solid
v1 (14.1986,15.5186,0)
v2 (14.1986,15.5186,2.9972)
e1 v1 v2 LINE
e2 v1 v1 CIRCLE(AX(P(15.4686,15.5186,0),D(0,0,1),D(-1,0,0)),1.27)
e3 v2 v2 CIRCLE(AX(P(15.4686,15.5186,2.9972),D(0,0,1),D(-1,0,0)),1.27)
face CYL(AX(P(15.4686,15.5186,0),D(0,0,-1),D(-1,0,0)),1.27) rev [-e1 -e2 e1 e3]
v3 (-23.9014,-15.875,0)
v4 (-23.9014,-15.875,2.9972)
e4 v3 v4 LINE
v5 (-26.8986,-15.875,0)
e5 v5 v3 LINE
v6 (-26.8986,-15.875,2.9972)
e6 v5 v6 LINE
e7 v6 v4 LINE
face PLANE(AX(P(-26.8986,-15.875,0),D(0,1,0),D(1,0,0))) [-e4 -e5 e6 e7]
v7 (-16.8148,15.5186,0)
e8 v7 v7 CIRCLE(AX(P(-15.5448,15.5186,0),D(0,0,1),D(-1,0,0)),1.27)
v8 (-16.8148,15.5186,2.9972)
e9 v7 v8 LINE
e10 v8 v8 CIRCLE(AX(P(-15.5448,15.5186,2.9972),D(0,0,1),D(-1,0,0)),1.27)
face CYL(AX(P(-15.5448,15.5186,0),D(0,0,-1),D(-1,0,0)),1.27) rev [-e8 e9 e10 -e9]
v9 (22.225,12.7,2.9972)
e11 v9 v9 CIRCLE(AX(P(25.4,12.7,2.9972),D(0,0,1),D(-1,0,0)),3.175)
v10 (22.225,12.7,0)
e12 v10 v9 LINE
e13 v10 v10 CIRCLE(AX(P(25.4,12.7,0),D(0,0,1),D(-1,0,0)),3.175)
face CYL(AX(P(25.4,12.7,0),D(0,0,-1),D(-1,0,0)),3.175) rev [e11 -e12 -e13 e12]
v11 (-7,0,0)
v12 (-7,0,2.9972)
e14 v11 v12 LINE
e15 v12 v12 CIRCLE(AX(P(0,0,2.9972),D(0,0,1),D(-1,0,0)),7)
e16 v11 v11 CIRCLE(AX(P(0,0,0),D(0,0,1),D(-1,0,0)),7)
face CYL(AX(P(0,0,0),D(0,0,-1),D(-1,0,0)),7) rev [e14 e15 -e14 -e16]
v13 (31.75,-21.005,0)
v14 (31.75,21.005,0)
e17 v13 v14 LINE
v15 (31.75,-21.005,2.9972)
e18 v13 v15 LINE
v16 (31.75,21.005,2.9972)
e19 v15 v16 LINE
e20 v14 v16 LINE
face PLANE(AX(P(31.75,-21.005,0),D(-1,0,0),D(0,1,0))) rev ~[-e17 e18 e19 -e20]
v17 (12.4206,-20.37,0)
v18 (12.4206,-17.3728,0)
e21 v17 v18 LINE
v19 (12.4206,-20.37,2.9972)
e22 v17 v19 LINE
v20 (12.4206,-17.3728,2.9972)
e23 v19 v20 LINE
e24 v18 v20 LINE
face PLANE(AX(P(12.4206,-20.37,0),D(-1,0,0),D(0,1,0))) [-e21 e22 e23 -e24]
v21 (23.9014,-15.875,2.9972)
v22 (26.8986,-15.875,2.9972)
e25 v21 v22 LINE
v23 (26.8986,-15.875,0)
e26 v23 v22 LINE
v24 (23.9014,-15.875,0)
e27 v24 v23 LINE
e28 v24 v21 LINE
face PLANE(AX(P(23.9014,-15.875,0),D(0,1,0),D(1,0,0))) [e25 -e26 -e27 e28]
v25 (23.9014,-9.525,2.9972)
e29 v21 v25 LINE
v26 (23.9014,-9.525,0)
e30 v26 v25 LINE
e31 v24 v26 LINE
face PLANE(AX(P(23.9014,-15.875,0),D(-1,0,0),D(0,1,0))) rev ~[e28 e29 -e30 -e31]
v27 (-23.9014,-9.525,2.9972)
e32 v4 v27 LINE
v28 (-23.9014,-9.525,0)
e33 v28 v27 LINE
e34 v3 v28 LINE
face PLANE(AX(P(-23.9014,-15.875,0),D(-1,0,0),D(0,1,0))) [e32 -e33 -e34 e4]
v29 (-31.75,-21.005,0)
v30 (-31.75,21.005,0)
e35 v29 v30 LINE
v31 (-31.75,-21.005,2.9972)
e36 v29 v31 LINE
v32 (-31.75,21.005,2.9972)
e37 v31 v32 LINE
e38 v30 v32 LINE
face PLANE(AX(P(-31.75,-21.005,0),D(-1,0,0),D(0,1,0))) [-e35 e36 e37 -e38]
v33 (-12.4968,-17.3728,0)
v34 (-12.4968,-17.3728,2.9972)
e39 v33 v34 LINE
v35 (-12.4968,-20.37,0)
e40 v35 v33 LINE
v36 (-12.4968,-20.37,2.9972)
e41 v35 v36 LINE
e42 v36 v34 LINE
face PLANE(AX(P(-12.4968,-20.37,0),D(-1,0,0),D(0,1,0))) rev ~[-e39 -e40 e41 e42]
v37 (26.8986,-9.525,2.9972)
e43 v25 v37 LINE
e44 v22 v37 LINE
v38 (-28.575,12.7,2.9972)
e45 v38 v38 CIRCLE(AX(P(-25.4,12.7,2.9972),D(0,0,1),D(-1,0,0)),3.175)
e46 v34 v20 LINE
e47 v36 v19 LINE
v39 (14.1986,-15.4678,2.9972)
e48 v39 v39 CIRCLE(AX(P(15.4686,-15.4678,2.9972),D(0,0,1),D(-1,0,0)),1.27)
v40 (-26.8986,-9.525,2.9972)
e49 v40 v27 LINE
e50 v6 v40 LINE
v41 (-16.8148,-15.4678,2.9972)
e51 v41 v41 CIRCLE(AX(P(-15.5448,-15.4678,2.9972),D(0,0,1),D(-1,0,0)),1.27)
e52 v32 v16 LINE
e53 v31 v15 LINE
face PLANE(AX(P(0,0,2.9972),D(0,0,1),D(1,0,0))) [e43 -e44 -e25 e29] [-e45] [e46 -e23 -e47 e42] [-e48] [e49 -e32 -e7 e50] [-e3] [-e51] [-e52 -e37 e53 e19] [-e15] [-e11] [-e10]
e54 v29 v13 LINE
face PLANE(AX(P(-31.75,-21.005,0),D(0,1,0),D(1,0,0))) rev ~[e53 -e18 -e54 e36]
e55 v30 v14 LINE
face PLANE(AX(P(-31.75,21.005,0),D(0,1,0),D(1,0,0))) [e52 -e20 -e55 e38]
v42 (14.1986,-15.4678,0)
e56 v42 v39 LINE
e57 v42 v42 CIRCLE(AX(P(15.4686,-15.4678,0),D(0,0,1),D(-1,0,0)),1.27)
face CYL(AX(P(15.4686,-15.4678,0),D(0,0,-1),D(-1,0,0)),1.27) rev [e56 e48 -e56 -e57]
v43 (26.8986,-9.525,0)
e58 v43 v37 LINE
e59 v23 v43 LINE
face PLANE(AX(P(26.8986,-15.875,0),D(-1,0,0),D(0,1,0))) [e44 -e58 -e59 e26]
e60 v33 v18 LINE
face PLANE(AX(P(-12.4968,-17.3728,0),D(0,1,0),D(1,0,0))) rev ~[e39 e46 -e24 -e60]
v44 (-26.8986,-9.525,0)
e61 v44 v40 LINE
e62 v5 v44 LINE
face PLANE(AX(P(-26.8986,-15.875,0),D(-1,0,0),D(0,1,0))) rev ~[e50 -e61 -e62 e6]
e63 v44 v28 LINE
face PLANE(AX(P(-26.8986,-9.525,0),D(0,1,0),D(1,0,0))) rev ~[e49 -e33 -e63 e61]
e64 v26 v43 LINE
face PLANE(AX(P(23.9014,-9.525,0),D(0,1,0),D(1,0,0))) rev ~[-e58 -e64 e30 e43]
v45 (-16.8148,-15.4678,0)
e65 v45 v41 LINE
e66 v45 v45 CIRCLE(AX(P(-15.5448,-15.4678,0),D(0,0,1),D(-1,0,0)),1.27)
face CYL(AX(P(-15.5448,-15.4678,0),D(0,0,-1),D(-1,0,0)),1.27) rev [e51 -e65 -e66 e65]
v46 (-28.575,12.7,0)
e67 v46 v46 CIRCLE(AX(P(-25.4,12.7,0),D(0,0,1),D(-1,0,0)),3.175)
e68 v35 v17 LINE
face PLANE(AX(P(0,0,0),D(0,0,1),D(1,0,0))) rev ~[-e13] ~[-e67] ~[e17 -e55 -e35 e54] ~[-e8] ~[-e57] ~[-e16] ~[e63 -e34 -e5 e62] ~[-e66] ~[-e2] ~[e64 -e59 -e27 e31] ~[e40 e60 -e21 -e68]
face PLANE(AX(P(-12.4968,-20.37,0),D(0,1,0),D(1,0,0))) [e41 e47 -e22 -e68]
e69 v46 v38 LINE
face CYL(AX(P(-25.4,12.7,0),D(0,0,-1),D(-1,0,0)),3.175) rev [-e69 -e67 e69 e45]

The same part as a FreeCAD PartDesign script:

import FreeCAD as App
import Part
import Sketcher
from FreeCAD import Vector
Q = App.Units.Quantity

doc = App.newDocument("Part")
body = doc.addObject("PartDesign::Body", "Body")

# Sketch on XY plane
sketch1 = body.newObject("Sketcher::SketchObject", "Sketch")
sketch1.AttachmentSupport = (doc.getObject("XY_Plane"), [""])
sketch1.MapMode = "FlatFace"
sketch1.addGeometry([
    Part.LineSegment(Vector(-31.8, 21, 0), Vector(-31.8, -21, 0)),  # 0
    Part.LineSegment(Vector(-31.8, -21, 0), Vector(31.8, -21, 0)),  # 1
    Part.LineSegment(Vector(31.8, -21, 0), Vector(31.8, 21, 0)),  # 2
    Part.LineSegment(Vector(31.8, 21, 0), Vector(-31.8, 21, 0)),  # 3
    Part.LineSegment(Vector(-23.9, -15.9, 0), Vector(-26.9, -15.9, 0)),  # 4
    Part.LineSegment(Vector(-26.9, -15.9, 0), Vector(-26.9, -9.5, 0)),  # 5
    Part.LineSegment(Vector(-26.9, -9.5, 0), Vector(-23.9, -9.5, 0)),  # 6
    Part.LineSegment(Vector(-23.9, -9.5, 0), Vector(-23.9, -15.9, 0)),  # 7
    Part.Circle(Vector(-15.5, -15.5, 0), Vector(0, 0, 1), 1.3),  # 8
    Part.LineSegment(Vector(12.4, -20.4, 0), Vector(-12.5, -20.4, 0)),  # 9
    Part.LineSegment(Vector(-12.5, -20.4, 0), Vector(-12.5, -17.4, 0)),  # 10
    Part.LineSegment(Vector(-12.5, -17.4, 0), Vector(12.4, -17.4, 0)),  # 11
    Part.LineSegment(Vector(12.4, -17.4, 0), Vector(12.4, -20.4, 0)),  # 12
    Part.Circle(Vector(15.5, -15.5, 0), Vector(0, 0, 1), 1.3),  # 13
    Part.LineSegment(Vector(26.9, -15.9, 0), Vector(23.9, -15.9, 0)),  # 14
    Part.LineSegment(Vector(23.9, -15.9, 0), Vector(23.9, -9.5, 0)),  # 15
    Part.LineSegment(Vector(23.9, -9.5, 0), Vector(26.9, -9.5, 0)),  # 16
    Part.LineSegment(Vector(26.9, -9.5, 0), Vector(26.9, -15.9, 0)),  # 17
    Part.Circle(Vector(-25.4, 12.7, 0), Vector(0, 0, 1), 3.2),  # 18
    Part.Circle(Vector(-15.5, 15.5, 0), Vector(0, 0, 1), 1.3),  # 19
    Part.Circle(Vector(0, 0, 0), Vector(0, 0, 1), 7),  # 20
    Part.Circle(Vector(15.5, 15.5, 0), Vector(0, 0, 1), 1.3),  # 21
    Part.Circle(Vector(25.4, 12.7, 0), Vector(0, 0, 1), 3.2),  # 22
], False)
sketch1.addConstraint([
    Sketcher.Constraint("Coincident", 0, 2, 1, 1),
    Sketcher.Constraint("Coincident", 1, 2, 2, 1),
    Sketcher.Constraint("Coincident", 2, 2, 3, 1),
    Sketcher.Constraint("Coincident", 3, 2, 0, 1),
    Sketcher.Constraint("Coincident", 4, 2, 5, 1),
    Sketcher.Constraint("Coincident", 5, 2, 6, 1),
    Sketcher.Constraint("Coincident", 6, 2, 7, 1),
    Sketcher.Constraint("Coincident", 7, 2, 4, 1),
    Sketcher.Constraint("Coincident", 9, 2, 10, 1),
    Sketcher.Constraint("Coincident", 10, 2, 11, 1),
    Sketcher.Constraint("Coincident", 11, 2, 12, 1),
    Sketcher.Constraint("Coincident", 12, 2, 9, 1),
    Sketcher.Constraint("Coincident", 14, 2, 15, 1),
    Sketcher.Constraint("Coincident", 15, 2, 16, 1),
    Sketcher.Constraint("Coincident", 16, 2, 17, 1),
    Sketcher.Constraint("Coincident", 17, 2, 14, 1),
    Sketcher.Constraint("Vertical", 0),
    Sketcher.Constraint("Horizontal", 1),
    Sketcher.Constraint("Vertical", 2),
    Sketcher.Constraint("Horizontal", 3),
    Sketcher.Constraint("Horizontal", 4),
    Sketcher.Constraint("Vertical", 5),
    Sketcher.Constraint("Horizontal", 6),
    Sketcher.Constraint("Vertical", 7),
    Sketcher.Constraint("Horizontal", 9),
    Sketcher.Constraint("Vertical", 10),
    Sketcher.Constraint("Horizontal", 11),
    Sketcher.Constraint("Vertical", 12),
    Sketcher.Constraint("Horizontal", 14),
    Sketcher.Constraint("Vertical", 15),
    Sketcher.Constraint("Horizontal", 16),
    Sketcher.Constraint("Vertical", 17),
    Sketcher.Constraint("Coincident", 20, 3, -1, 1),
    Sketcher.Constraint("Equal", 8, 13),
    Sketcher.Constraint("Equal", 13, 19),
    Sketcher.Constraint("Equal", 19, 21),
    Sketcher.Constraint("Equal", 18, 22),
    Sketcher.Constraint("Symmetric", 0, 2, 2, 2, -1, 1),
    Sketcher.Constraint("Symmetric", 18, 3, 22, 3, -2),
    Sketcher.Constraint("Symmetric", 7, 2, 14, 2, -2),
    Sketcher.Constraint("Symmetric", 5, 2, 16, 2, -2),
    Sketcher.Constraint("Horizontal", 8, 3, 13, 3),
    Sketcher.Constraint("Horizontal", 19, 3, 21, 3),
    Sketcher.Constraint("Vertical", 8, 3, 19, 3),
    Sketcher.Constraint("Vertical", 13, 3, 21, 3),
    Sketcher.Constraint("Equal", 16, 10),
    Sketcher.Constraint("Diameter", 8, Q("0.1 in")),
    Sketcher.Constraint("Diameter", 18, Q("0.25 in")),
    Sketcher.Constraint("DistanceX", 1, 1, 1, 2, Q("2.5 in")),
    Sketcher.Constraint("DistanceX", 18, 3, -1, 1, Q("1 in")),
    Sketcher.Constraint("DistanceY", 5, 1, 5, 2, Q("0.25 in")),
    Sketcher.Constraint("DistanceY", -1, 1, 18, 3, Q("0.5 in")),
    Sketcher.Constraint("Diameter", 20, 14.0),
    Sketcher.Constraint("DistanceX", 4, 2, 4, 1, Q("0.118 in")),
    Sketcher.Constraint("DistanceX", 9, 2, 9, 1, Q("0.981 in")),
    Sketcher.Constraint("DistanceX", 8, 3, 9, 2, Q("0.12 in")),
    Sketcher.Constraint("DistanceX", 11, 2, 13, 3, Q("0.12 in")),
    Sketcher.Constraint("DistanceX", 13, 3, 16, 2, Q("0.45 in")),
    Sketcher.Constraint("DistanceX", 8, 3, -1, 1, Q("0.612 in")),
    Sketcher.Constraint("DistanceY", 4, 2, -1, 1, Q("0.625 in")),
    Sketcher.Constraint("DistanceY", 0, 2, 8, 3, Q("0.218 in")),
    Sketcher.Constraint("DistanceY", 21, 3, 2, 2, Q("0.216 in")),
    Sketcher.Constraint("DistanceY", 9, 2, 8, 3, Q("0.193 in")),
    Sketcher.Constraint("DistanceY", 0, 2, 0, 1, 42.01),
])
pad1 = body.newObject("PartDesign::Pad", "Pad")
pad1.Profile = sketch1
pad1.Length = Q("0.118 in")

doc.recompute()
